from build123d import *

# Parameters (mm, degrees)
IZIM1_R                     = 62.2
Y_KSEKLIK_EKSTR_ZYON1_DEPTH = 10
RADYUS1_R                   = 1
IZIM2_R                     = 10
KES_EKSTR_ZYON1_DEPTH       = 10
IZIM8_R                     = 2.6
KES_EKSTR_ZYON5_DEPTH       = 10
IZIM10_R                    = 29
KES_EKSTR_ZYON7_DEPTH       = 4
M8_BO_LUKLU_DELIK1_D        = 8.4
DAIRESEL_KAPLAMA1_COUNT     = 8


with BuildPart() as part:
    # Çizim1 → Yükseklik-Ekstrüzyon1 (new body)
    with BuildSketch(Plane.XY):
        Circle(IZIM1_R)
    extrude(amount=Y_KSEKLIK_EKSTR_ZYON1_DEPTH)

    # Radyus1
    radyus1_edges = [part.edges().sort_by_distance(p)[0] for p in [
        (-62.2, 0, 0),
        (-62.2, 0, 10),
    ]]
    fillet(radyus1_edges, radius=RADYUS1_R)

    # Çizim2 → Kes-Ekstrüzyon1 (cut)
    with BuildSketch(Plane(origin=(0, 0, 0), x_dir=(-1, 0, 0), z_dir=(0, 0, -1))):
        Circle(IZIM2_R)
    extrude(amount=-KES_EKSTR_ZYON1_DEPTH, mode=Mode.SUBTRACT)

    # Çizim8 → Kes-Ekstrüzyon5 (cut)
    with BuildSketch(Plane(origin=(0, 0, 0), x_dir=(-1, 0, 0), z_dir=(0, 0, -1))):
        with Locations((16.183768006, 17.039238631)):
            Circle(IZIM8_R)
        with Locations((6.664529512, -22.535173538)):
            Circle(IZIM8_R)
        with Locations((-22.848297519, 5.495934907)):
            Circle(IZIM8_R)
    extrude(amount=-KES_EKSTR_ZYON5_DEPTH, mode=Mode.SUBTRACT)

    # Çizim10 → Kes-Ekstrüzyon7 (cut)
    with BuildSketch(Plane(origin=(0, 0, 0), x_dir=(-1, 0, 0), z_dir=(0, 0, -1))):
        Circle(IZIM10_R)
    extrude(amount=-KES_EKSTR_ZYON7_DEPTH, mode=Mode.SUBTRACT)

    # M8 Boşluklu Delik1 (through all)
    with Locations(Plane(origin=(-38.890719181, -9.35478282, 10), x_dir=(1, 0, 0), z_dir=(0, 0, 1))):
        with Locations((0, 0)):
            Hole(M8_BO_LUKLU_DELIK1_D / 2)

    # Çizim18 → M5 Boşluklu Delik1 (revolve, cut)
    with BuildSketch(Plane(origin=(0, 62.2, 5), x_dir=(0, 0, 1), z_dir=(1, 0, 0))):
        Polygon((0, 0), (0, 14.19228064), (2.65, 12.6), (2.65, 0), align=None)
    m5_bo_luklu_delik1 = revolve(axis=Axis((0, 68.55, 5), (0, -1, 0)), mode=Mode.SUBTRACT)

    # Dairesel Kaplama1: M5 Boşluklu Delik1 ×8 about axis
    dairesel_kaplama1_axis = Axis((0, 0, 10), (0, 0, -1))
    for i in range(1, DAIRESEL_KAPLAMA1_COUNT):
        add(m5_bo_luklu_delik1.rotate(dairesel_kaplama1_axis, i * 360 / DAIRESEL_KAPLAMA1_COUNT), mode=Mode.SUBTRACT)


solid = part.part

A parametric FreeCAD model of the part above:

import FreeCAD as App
import Part
import Sketcher
from FreeCAD import Vector
Q = App.Units.Quantity


def edges_at(feature, points):
    """Names of the edges that pass closest to the given points."""
    edges = feature.Shape.Edges
    near = lambda p: min(range(len(edges)), key=lambda i: edges[i].distToShape(Part.Vertex(*p))[0])
    return sorted({f"Edge{near(p) + 1}" for p in points})


def add_polygon(sketch, points):
    """Adds a closed chain of lines whose ends are joined by coincident constraints."""
    first, n = sketch.GeometryCount, len(points)
    for a, b in zip(points, points[1:] + points[:1]):
        sketch.addGeometry(Part.LineSegment(App.Vector(*a, 0), App.Vector(*b, 0)), False)
    for i in range(n):
        sketch.addConstraint(Sketcher.Constraint("Coincident", first + i, 2, first + (i + 1) % n, 1))

doc = App.newDocument("Part")
body = doc.addObject("PartDesign::Body", "Body")

sketch1 = doc.addObject("Sketcher::SketchObject", "Sketch")
body.addObject(sketch1)
sketch1.AttachmentSupport = (doc.XY_Plane, [""])
sketch1.MapMode = "FlatFace"
sketch1.addGeometry(Part.Circle(Vector(0, 0, 0), Vector(0, 0, 1), 62.2), False)
sketch1.addConstraint([
    Sketcher.Constraint("Coincident", 0, 3, -1, 1),
    Sketcher.Constraint("Diameter", 0, 124.4),
])
pad1 = doc.addObject("PartDesign::Pad", "Pad")
body.addObject(pad1)
pad1.Profile = sketch1
pad1.Length = 10
doc.recompute()

fillet = doc.addObject("PartDesign::Fillet", "Fillet")
body.addObject(fillet)
fillet.Base = (pad1, edges_at(pad1, [(-62.2, 0, 0), (-62.2, 0, 10)]))
fillet.Radius = 1

sketch2 = doc.addObject("Sketcher::SketchObject", "Sketch001")
body.addObject(sketch2)
sketch2.AttachmentSupport = (doc.XY_Plane, [""])
sketch2.MapMode = "FlatFace"
sketch2.addGeometry(Part.Circle(Vector(0, 0, 0), Vector(0, 0, 1), 10), False)
sketch2.addConstraint([
    Sketcher.Constraint("Coincident", 0, 3, -1, 1),
    Sketcher.Constraint("Diameter", 0, 20.0),
])
pocket1 = doc.addObject("PartDesign::Pocket", "Pocket")
body.addObject(pocket1)
pocket1.Profile = sketch2
pocket1.Length = 10
pocket1.Reversed = True

sketch3 = doc.addObject("Sketcher::SketchObject", "Sketch002")
body.addObject(sketch3)
sketch3.AttachmentSupport = (doc.XY_Plane, [""])
sketch3.MapMode = "FlatFace"
sketch3.addGeometry([
    Part.Circle(Vector(-16.183768, 17.039239, 0), Vector(0, 0, 1), 2.6),
    Part.Circle(Vector(-6.66453, -22.535174, 0), Vector(0, 0, 1), 2.6),
    Part.Circle(Vector(22.848298, 5.495935, 0), Vector(0, 0, 1), 2.6),
], False)
sketch3.addConstraint([
    Sketcher.Constraint("Equal", 0, 1),
    Sketcher.Constraint("Equal", 1, 2),
    Sketcher.Constraint("Diameter", 0, 5.2),
    Sketcher.Constraint("DistanceX", 0, 3, -1, 1, 16.183768),
    Sketcher.Constraint("DistanceY", -1, 1, 0, 3, 17.039239),
    Sketcher.Constraint("DistanceX", 1, 3, -1, 1, 6.66453),
    Sketcher.Constraint("DistanceY", 1, 3, 2, 3, 28.031108),
    Sketcher.Constraint("DistanceY", 1, 3, -1, 1, 22.535174),
    Sketcher.Constraint("DistanceX", -1, 1, 2, 3, 22.848298),
])
pocket2 = doc.addObject("PartDesign::Pocket", "Pocket001")
body.addObject(pocket2)
pocket2.Profile = sketch3
pocket2.Length = 10
pocket2.Reversed = True

sketch4 = doc.addObject("Sketcher::SketchObject", "Sketch003")
body.addObject(sketch4)
sketch4.AttachmentSupport = (doc.XY_Plane, [""])
sketch4.MapMode = "FlatFace"
sketch4.addGeometry(Part.Circle(Vector(0, 0, 0), Vector(0, 0, 1), 29), False)
sketch4.addConstraint([
    Sketcher.Constraint("Coincident", 0, 3, -1, 1),
    Sketcher.Constraint("Diameter", 0, 58.0),
])
pocket3 = doc.addObject("PartDesign::Pocket", "Pocket002")
body.addObject(pocket3)
pocket3.Profile = sketch4
pocket3.Length = 4
pocket3.Reversed = True

sketch5 = doc.addObject("Sketcher::SketchObject", "Sketch004")
body.addObject(sketch5)
sketch5.AttachmentSupport = (doc.XY_Plane, [""])
sketch5.MapMode = "FlatFace"
sketch5.AttachmentOffset = App.Placement(Vector(0, 0, 10), App.Rotation())
sketch5.addGeometry(Part.Circle(Vector(-38.890719, -9.354783, 0), Vector(0, 0, 1), 4.2), False)
sketch5.addConstraint([
    Sketcher.Constraint("Diameter", 0, 8.4),
    Sketcher.Constraint("DistanceX", 0, 3, -1, 1, 38.890719),
    Sketcher.Constraint("DistanceY", 0, 3, -1, 1, 9.354783),
])
doc.recompute()
hole = doc.addObject("PartDesign::Hole", "Hole")
body.addObject(hole)
hole.Profile = sketch5
hole.ThreadType = "None"
hole.Diameter = 8.4
hole.DepthType = "ThroughAll"

sketch6 = doc.addObject("Sketcher::SketchObject", "Sketch005")
body.addObject(sketch6)
sketch6.AttachmentSupport = (doc.YZ_Plane, [""])
sketch6.MapMode = "FlatFace"
add_polygon(sketch6, [(48.007719, 5), (62.2, 5), (62.2, 7.65), (49.6, 7.65)])
sketch6.addGeometry(Part.LineSegment(Vector(62.2, 5, 0), Vector(48.007719, 5, 0)), True)
sketch6.addConstraint([
    Sketcher.Constraint("Horizontal", 0),
    Sketcher.Constraint("Vertical", 1),
    Sketcher.Constraint("Horizontal", 2),
    Sketcher.Constraint("Horizontal", 4),
    Sketcher.Constraint("Coincident", 4, 1, 0, 2),
    Sketcher.Constraint("Equal", 0, 4),
    Sketcher.Constraint("Angle", 3, Q("-121 deg")),
    Sketcher.Constraint("DistanceX", 2, 2, 2, 1, 12.6),
    Sketcher.Constraint("DistanceY", -1, 1, 0, 2, 5.0),
    Sketcher.Constraint("DistanceY", 1, 1, 1, 2, 2.65),
    Sketcher.Constraint("DistanceX", -1, 1, 0, 2, 62.2),
])
groove = doc.addObject("PartDesign::Groove", "Groove")
body.addObject(groove)
groove.Profile = sketch6
groove.ReferenceAxis = (sketch6, ["Axis0"])
groove.Angle = 360
doc.recompute()

polarpattern = doc.addObject("PartDesign::PolarPattern", "PolarPattern")
body.addObject(polarpattern)
polarpattern.Originals = [groove]
polarpattern.Axis = (doc.Z_Axis, [""])
polarpattern.Angle = 360
polarpattern.Occurrences = 8
body.Tip = polarpattern

doc.recompute()
